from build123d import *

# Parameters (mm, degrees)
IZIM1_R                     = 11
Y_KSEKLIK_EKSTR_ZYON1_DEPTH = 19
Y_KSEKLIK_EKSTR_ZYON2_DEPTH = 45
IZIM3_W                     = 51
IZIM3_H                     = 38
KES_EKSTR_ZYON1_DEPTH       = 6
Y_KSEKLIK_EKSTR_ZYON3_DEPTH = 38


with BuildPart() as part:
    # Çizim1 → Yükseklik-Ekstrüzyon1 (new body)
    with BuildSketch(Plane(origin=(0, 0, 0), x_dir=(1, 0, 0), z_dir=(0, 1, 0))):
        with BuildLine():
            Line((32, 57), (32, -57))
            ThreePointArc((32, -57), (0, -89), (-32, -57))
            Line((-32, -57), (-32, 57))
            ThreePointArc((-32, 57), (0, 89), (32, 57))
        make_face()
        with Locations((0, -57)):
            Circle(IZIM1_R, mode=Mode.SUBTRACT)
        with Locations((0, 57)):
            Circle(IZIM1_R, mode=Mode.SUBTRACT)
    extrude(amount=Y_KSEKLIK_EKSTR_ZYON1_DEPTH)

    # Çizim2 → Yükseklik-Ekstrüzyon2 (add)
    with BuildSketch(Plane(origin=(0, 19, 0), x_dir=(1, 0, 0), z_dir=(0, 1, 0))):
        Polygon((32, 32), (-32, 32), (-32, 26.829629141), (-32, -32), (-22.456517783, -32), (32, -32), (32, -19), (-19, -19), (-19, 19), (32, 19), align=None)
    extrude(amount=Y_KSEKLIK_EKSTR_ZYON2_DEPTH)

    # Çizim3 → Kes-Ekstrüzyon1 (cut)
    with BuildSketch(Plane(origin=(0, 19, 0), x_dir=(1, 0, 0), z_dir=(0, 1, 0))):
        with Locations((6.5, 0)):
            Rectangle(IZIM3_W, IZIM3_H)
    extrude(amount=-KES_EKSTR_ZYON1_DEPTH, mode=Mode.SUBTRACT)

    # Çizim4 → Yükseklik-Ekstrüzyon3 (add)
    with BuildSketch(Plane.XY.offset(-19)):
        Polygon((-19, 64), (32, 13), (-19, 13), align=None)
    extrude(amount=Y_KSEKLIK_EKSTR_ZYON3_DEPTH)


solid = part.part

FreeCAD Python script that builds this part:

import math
import FreeCAD as App
import Part
import Sketcher

V = App.Vector
Q = App.Units.Quantity


def add_polygon(sketch, points):
    """Adds a closed chain of lines whose ends are joined by coincident constraints."""
    first, n = sketch.GeometryCount, len(points)
    for a, b in zip(points, points[1:] + points[:1]):
        sketch.addGeometry(Part.LineSegment(App.Vector(*a, 0), App.Vector(*b, 0)), False)
    for i in range(n):
        sketch.addConstraint(Sketcher.Constraint("Coincident", first + i, 2, first + (i + 1) % n, 1))

doc = App.newDocument("Part")
params = doc.addObject("Spreadsheet::Sheet", "Params")
for row, (alias, value) in enumerate([
    ("sketch1_diameter", "22 mm"),
    ("sketch1_radius", "32 mm"),
    ("sketch1_height", "114 mm"),
    ("pad1_length", "19 mm"),
    ("sketch2_width", "64 mm"),
    ("sketch2_width2", "51 mm"),
    ("sketch2_height", "13 mm"),
    ("pad2_length", "45 mm"),
    ("sketch3_width", "51 mm"),
    ("sketch3_height", "38 mm"),
    ("pocket1_length", "6 mm"),
    ("sketch4_width", "51 mm"),
    ("pad3_length", "38 mm"),
], start=1):
    params.set(f"A{row}", alias)
    params.set(f"B{row}", "=" + value)
    params.setAlias(f"B{row}", alias)

body = doc.addObject("PartDesign::Body", "Body")

# Sketch on XZ plane
sketch1 = doc.addObject("Sketcher::SketchObject", "Sketch")
body.addObject(sketch1)
sketch1.AttachmentSupport = (doc.XZ_Plane, [""])
sketch1.MapMode = "FlatFace"
sketch1.addGeometry([
    Part.LineSegment(V(32, 57, 0), V(32, -57, 0)),  # 0
    Part.ArcOfCircle(Part.Circle(V(0, -57, 0), V(0, 0, 1), 32), math.radians(180), math.radians(360)),  # 1
    Part.LineSegment(V(-32, -57, 0), V(-32, 57, 0)),  # 2
    Part.ArcOfCircle(Part.Circle(V(0, 57, 0), V(0, 0, 1), 32), math.radians(0), math.radians(180)),  # 3
    Part.Circle(V(0, 57, 0), V(0, 0, 1), 11),  # 4
    Part.Circle(V(0, -57, 0), V(0, 0, 1), 11),  # 5
], False)
sketch1.addConstraint([
    Sketcher.Constraint("Tangent", 0, 2, 1, 2),
    Sketcher.Constraint("Tangent", 1, 1, 2, 1),
    Sketcher.Constraint("Tangent", 2, 2, 3, 2),
    Sketcher.Constraint("Tangent", 3, 1, 0, 1),
    Sketcher.Constraint("Vertical", 0),
    Sketcher.Constraint("Vertical", 2),
    Sketcher.Constraint("Coincident", 4, 3, 3, 3),
    Sketcher.Constraint("Coincident", 5, 3, 1, 3),
    Sketcher.Constraint("Equal", 4, 5),
    Sketcher.Constraint("Symmetric", 1, 3, 3, 3, -1, 1),
    Sketcher.Constraint("Diameter", 4, Q("22 mm")),
    Sketcher.Constraint("Radius", 1, Q("32 mm")),
    Sketcher.Constraint("DistanceY", 0, 2, 0, 1, Q("114 mm")),
])
sketch1.setExpression("Constraints[10]", "Params.sketch1_diameter")
sketch1.setExpression("Constraints[11]", "Params.sketch1_radius")
sketch1.setExpression("Constraints[12]", "Params.sketch1_height")
pad1 = doc.addObject("PartDesign::Pad", "Pad")
body.addObject(pad1)
pad1.Profile = sketch1
pad1.setExpression("Length", "Params.pad1_length")
pad1.Reversed = True

# Sketch on XZ plane
sketch2 = doc.addObject("Sketcher::SketchObject", "Sketch001")
body.addObject(sketch2)
sketch2.AttachmentSupport = (doc.XZ_Plane, [""])
sketch2.MapMode = "FlatFace"
sketch2.AttachmentOffset = App.Placement(V(0, 0, -19), App.Rotation())
add_polygon(sketch2, [(32, -32), (-32, -32), (-32, 32), (32, 32), (32, 19), (-19, 19), (-19, -19), (32, -19)])  # lines 0-7
sketch2.addConstraint([
    Sketcher.Constraint("Horizontal", 0),
    Sketcher.Constraint("Vertical", 1),
    Sketcher.Constraint("Horizontal", 2),
    Sketcher.Constraint("Vertical", 3),
    Sketcher.Constraint("Horizontal", 4),
    Sketcher.Constraint("Vertical", 5),
    Sketcher.Constraint("Horizontal", 6),
    Sketcher.Constraint("Vertical", 7),
    Sketcher.Constraint("Symmetric", 0, 2, 2, 2, -1, 1),
    Sketcher.Constraint("Symmetric", 3, 2, 6, 2, -1),
    Sketcher.Constraint("Equal", 2, 1),
    Sketcher.Constraint("DistanceX", 0, 2, 0, 1, Q("64 mm")),
    Sketcher.Constraint("DistanceX", 4, 2, 4, 1, Q("51 mm")),
    Sketcher.Constraint("DistanceY", 3, 2, 3, 1, Q("13 mm")),
])
sketch2.setExpression("Constraints[19]", "Params.sketch2_width")
sketch2.setExpression("Constraints[20]", "Params.sketch2_width2")
sketch2.setExpression("Constraints[21]", "Params.sketch2_height")
pad2 = doc.addObject("PartDesign::Pad", "Pad001")
body.addObject(pad2)
pad2.Profile = sketch2
pad2.setExpression("Length", "Params.pad2_length")
pad2.Reversed = True

# Sketch on XZ plane
sketch3 = doc.addObject("Sketcher::SketchObject", "Sketch002")
body.addObject(sketch3)
sketch3.AttachmentSupport = (doc.XZ_Plane, [""])
sketch3.MapMode = "FlatFace"
sketch3.AttachmentOffset = App.Placement(V(0, 0, -19), App.Rotation())
add_polygon(sketch3, [(-19, -19), (-19, 19), (32, 19), (32, -19)])  # lines 0-3
sketch3.addConstraint([
    Sketcher.Constraint("Vertical", 0),
    Sketcher.Constraint("Horizontal", 1),
    Sketcher.Constraint("Vertical", 2),
    Sketcher.Constraint("Horizontal", 3),
    Sketcher.Constraint("DistanceX", 1, 1, 1, 2, Q("51 mm")),
    Sketcher.Constraint("DistanceY", 0, 1, 0, 2, Q("38 mm")),
    Sketcher.Constraint("DistanceX", 0, 2, -1, 1, Q("19 mm")),
    Sketcher.Constraint("DistanceY", -1, 1, 0, 2, Q("19 mm")),
])
sketch3.setExpression("Constraints[8]", "Params.sketch3_width")
sketch3.setExpression("Constraints[9]", "Params.sketch3_height")
pocket1 = doc.addObject("PartDesign::Pocket", "Pocket")
body.addObject(pocket1)
pocket1.Profile = sketch3
pocket1.setExpression("Length", "Params.pocket1_length")
pocket1.Reversed = True

# Sketch on XY plane
sketch4 = doc.addObject("Sketcher::SketchObject", "Sketch003")
body.addObject(sketch4)
sketch4.AttachmentSupport = (doc.XY_Plane, [""])
sketch4.MapMode = "FlatFace"
sketch4.AttachmentOffset = App.Placement(V(0, 0, -19), App.Rotation())
add_polygon(sketch4, [(32, 13), (-19, 64), (-19, 13)])  # lines 0-2
sketch4.addConstraint([
    Sketcher.Constraint("Vertical", 1),
    Sketcher.Constraint("Horizontal", 2),
    Sketcher.Constraint("Equal", 2, 1),
    Sketcher.Constraint("DistanceX", 2, 1, 2, 2, Q("51 mm")),
    Sketcher.Constraint("DistanceX", 0, 2, -1, 1, Q("19 mm")),
    Sketcher.Constraint("DistanceY", -1, 1, 0, 2, Q("64 mm")),
])
sketch4.setExpression("Constraints[6]", "Params.sketch4_width")
pad3 = doc.addObject("PartDesign::Pad", "Pad002")
body.addObject(pad3)
pad3.Profile = sketch4
pad3.setExpression("Length", "Params.pad3_length")

doc.recompute()
